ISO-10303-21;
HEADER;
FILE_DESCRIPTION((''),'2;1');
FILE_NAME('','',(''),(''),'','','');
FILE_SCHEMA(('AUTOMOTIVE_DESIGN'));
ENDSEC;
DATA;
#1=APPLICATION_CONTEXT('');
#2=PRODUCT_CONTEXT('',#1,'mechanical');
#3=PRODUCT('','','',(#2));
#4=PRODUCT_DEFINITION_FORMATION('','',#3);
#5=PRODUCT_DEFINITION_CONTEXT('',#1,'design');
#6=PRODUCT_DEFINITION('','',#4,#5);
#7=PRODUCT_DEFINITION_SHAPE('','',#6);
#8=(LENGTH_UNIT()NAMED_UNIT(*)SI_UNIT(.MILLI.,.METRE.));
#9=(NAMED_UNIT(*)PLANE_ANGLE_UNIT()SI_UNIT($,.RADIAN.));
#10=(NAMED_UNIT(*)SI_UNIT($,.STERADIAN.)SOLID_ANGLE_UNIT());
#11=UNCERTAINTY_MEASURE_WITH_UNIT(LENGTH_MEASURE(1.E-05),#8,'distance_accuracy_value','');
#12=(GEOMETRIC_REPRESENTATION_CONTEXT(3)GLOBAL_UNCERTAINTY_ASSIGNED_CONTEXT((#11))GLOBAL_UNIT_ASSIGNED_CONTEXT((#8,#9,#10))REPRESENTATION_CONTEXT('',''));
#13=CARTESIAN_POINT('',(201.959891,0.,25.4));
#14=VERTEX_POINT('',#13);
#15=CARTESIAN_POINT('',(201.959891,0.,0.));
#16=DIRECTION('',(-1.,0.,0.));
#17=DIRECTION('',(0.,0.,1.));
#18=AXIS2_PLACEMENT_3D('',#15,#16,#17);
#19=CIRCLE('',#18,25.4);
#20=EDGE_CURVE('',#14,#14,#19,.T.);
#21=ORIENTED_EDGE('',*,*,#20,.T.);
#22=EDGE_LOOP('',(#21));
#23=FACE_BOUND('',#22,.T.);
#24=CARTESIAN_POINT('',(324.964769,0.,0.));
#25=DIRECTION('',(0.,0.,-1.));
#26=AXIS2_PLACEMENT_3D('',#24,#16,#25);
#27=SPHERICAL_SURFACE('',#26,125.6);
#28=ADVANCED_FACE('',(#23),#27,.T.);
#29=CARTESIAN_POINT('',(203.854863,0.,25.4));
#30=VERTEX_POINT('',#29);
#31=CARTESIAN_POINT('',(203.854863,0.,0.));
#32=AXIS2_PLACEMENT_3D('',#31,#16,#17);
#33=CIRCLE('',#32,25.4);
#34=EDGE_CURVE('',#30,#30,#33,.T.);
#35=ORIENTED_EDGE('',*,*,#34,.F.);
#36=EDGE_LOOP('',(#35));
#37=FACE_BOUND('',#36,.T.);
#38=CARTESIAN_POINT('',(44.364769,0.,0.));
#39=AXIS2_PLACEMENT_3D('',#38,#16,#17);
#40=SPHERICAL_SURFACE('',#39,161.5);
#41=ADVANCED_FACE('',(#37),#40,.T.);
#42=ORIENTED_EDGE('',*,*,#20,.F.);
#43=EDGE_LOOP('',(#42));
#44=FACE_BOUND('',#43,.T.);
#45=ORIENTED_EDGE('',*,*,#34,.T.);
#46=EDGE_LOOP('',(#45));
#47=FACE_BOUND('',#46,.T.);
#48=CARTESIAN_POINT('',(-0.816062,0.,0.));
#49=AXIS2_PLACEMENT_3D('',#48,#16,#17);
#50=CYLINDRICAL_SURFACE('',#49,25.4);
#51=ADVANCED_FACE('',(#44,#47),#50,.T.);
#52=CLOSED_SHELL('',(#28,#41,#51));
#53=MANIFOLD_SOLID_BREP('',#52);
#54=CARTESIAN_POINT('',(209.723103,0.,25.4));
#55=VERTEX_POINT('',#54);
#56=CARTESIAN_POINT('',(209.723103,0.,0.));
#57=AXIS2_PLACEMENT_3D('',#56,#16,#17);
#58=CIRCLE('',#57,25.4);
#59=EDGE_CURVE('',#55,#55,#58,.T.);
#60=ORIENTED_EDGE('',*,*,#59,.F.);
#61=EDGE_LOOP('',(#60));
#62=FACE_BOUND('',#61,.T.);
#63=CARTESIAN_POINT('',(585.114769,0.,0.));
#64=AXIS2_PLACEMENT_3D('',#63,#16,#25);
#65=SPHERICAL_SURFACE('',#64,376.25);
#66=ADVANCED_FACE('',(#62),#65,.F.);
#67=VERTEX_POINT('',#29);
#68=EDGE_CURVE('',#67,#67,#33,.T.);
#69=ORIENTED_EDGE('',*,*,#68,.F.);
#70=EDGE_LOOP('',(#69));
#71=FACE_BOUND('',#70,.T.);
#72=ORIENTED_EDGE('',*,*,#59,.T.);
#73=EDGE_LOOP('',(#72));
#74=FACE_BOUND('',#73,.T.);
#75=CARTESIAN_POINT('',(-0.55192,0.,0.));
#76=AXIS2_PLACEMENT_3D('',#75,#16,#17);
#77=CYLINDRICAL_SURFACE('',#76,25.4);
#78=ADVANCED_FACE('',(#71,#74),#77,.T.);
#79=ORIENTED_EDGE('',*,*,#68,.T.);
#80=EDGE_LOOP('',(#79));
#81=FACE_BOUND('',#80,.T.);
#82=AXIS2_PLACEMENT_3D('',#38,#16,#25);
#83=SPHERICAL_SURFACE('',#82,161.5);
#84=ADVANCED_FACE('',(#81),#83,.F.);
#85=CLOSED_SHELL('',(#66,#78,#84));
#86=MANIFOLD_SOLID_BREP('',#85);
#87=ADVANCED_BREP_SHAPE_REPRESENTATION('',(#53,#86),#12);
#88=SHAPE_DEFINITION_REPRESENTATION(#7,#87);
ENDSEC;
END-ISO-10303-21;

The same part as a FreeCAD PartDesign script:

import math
import FreeCAD as App
import Part
import Sketcher
Q = App.Units.Quantity

doc = App.newDocument("Part")
body = doc.addObject("PartDesign::Body", "Body")

# Sketch on XZ plane
sketch1 = body.newObject("Sketcher::SketchObject", "Sketch")
sketch1.AttachmentSupport = (doc.getObject("XZ_Plane"), [""])
sketch1.MapMode = "FlatFace"
sketch1.addGeometry([
    Part.ArcOfCircle(Part.Circle(App.Vector(324.964769, 0, 0), App.Vector(0, 0, 1), 125.6), math.radians(180), math.radians(191.667353)),
    Part.LineSegment(App.Vector(199.364769, 0, 0), App.Vector(205.864769, 0, 0)),
    Part.ArcOfCircle(Part.Circle(App.Vector(44.364769, 0, 0), App.Vector(0, 0, 1), 161.5), math.radians(-9.048794), math.radians(0)),
    Part.LineSegment(App.Vector(203.854863, -25.4, 0), App.Vector(201.959891, -25.4, 0)),
], False)
sketch1.addConstraint([
    Sketcher.Constraint("Coincident", 0, 1, 1, 1),
    Sketcher.Constraint("Coincident", 1, 2, 2, 2),
    Sketcher.Constraint("Coincident", 2, 1, 3, 1),
    Sketcher.Constraint("Coincident", 3, 2, 0, 2),
    Sketcher.Constraint("Horizontal", 1),
    Sketcher.Constraint("Horizontal", 3),
    Sketcher.Constraint("PointOnObject", 0, 3, -1),
    Sketcher.Constraint("PointOnObject", 2, 3, -1),
    Sketcher.Constraint("PointOnObject", 0, 1, -1),
    Sketcher.Constraint("Radius", 0, Q("125.6 mm")),
    Sketcher.Constraint("Radius", 2, Q("161.5 mm")),
    Sketcher.Constraint("DistanceX", 1, 1, 1, 2, Q("6.5 mm")),
    Sketcher.Constraint("DistanceY", 2, 1, -1, 1, Q("25.4 mm")),
    Sketcher.Constraint("DistanceX", -1, 1, 0, 3, Q("324.964769 mm")),
])
revolution = body.newObject("PartDesign::Revolution", "Revolution")
revolution.Profile = sketch1
revolution.ReferenceAxis = (sketch1, ["H_Axis"])
revolution.Angle = 360
body2 = doc.addObject("PartDesign::Body", "Body001")

# Sketch on XZ plane
sketch2 = body2.newObject("Sketcher::SketchObject", "Sketch001")
sketch2.AttachmentSupport = (doc.getObject("XZ_Plane001"), [""])
sketch2.MapMode = "FlatFace"
sketch2.addGeometry([
    Part.LineSegment(App.Vector(209.723103, -25.4, 0), App.Vector(203.854863, -25.4, 0)),
    Part.ArcOfCircle(Part.Circle(App.Vector(44.364769, 0, 0), App.Vector(0, 0, 1), 161.5), math.radians(-9.048794), math.radians(0)),
    Part.LineSegment(App.Vector(205.864769, 0, 0), App.Vector(208.864769, 0, 0)),
    Part.ArcOfCircle(Part.Circle(App.Vector(585.114769, 0, 0), App.Vector(0, 0, 1), 376.25), math.radians(-180), math.radians(-176.129115)),
], False)
sketch2.addConstraint([
    Sketcher.Constraint("Coincident", 0, 2, 1, 1),
    Sketcher.Constraint("Coincident", 1, 2, 2, 1),
    Sketcher.Constraint("Coincident", 2, 2, 3, 1),
    Sketcher.Constraint("Coincident", 3, 2, 0, 1),
    Sketcher.Constraint("Horizontal", 0),
    Sketcher.Constraint("Horizontal", 2),
    Sketcher.Constraint("PointOnObject", 1, 3, -1),
    Sketcher.Constraint("PointOnObject", 3, 3, -1),
    Sketcher.Constraint("PointOnObject", 1, 2, -1),
    Sketcher.Constraint("Radius", 1, Q("161.5 mm")),
    Sketcher.Constraint("DistanceX", 2, 1, 2, 2, Q("3 mm")),
    Sketcher.Constraint("Radius", 3, Q("376.25 mm")),
    Sketcher.Constraint("DistanceY", 0, 2, -1, 1, Q("25.4 mm")),
    Sketcher.Constraint("DistanceX", -1, 1, 1, 3, Q("44.364769 mm")),
])
revolution2 = body2.newObject("PartDesign::Revolution", "Revolution001")
revolution2.Profile = sketch2
revolution2.ReferenceAxis = (sketch2, ["H_Axis"])
revolution2.Angle = 360

doc.recompute()
